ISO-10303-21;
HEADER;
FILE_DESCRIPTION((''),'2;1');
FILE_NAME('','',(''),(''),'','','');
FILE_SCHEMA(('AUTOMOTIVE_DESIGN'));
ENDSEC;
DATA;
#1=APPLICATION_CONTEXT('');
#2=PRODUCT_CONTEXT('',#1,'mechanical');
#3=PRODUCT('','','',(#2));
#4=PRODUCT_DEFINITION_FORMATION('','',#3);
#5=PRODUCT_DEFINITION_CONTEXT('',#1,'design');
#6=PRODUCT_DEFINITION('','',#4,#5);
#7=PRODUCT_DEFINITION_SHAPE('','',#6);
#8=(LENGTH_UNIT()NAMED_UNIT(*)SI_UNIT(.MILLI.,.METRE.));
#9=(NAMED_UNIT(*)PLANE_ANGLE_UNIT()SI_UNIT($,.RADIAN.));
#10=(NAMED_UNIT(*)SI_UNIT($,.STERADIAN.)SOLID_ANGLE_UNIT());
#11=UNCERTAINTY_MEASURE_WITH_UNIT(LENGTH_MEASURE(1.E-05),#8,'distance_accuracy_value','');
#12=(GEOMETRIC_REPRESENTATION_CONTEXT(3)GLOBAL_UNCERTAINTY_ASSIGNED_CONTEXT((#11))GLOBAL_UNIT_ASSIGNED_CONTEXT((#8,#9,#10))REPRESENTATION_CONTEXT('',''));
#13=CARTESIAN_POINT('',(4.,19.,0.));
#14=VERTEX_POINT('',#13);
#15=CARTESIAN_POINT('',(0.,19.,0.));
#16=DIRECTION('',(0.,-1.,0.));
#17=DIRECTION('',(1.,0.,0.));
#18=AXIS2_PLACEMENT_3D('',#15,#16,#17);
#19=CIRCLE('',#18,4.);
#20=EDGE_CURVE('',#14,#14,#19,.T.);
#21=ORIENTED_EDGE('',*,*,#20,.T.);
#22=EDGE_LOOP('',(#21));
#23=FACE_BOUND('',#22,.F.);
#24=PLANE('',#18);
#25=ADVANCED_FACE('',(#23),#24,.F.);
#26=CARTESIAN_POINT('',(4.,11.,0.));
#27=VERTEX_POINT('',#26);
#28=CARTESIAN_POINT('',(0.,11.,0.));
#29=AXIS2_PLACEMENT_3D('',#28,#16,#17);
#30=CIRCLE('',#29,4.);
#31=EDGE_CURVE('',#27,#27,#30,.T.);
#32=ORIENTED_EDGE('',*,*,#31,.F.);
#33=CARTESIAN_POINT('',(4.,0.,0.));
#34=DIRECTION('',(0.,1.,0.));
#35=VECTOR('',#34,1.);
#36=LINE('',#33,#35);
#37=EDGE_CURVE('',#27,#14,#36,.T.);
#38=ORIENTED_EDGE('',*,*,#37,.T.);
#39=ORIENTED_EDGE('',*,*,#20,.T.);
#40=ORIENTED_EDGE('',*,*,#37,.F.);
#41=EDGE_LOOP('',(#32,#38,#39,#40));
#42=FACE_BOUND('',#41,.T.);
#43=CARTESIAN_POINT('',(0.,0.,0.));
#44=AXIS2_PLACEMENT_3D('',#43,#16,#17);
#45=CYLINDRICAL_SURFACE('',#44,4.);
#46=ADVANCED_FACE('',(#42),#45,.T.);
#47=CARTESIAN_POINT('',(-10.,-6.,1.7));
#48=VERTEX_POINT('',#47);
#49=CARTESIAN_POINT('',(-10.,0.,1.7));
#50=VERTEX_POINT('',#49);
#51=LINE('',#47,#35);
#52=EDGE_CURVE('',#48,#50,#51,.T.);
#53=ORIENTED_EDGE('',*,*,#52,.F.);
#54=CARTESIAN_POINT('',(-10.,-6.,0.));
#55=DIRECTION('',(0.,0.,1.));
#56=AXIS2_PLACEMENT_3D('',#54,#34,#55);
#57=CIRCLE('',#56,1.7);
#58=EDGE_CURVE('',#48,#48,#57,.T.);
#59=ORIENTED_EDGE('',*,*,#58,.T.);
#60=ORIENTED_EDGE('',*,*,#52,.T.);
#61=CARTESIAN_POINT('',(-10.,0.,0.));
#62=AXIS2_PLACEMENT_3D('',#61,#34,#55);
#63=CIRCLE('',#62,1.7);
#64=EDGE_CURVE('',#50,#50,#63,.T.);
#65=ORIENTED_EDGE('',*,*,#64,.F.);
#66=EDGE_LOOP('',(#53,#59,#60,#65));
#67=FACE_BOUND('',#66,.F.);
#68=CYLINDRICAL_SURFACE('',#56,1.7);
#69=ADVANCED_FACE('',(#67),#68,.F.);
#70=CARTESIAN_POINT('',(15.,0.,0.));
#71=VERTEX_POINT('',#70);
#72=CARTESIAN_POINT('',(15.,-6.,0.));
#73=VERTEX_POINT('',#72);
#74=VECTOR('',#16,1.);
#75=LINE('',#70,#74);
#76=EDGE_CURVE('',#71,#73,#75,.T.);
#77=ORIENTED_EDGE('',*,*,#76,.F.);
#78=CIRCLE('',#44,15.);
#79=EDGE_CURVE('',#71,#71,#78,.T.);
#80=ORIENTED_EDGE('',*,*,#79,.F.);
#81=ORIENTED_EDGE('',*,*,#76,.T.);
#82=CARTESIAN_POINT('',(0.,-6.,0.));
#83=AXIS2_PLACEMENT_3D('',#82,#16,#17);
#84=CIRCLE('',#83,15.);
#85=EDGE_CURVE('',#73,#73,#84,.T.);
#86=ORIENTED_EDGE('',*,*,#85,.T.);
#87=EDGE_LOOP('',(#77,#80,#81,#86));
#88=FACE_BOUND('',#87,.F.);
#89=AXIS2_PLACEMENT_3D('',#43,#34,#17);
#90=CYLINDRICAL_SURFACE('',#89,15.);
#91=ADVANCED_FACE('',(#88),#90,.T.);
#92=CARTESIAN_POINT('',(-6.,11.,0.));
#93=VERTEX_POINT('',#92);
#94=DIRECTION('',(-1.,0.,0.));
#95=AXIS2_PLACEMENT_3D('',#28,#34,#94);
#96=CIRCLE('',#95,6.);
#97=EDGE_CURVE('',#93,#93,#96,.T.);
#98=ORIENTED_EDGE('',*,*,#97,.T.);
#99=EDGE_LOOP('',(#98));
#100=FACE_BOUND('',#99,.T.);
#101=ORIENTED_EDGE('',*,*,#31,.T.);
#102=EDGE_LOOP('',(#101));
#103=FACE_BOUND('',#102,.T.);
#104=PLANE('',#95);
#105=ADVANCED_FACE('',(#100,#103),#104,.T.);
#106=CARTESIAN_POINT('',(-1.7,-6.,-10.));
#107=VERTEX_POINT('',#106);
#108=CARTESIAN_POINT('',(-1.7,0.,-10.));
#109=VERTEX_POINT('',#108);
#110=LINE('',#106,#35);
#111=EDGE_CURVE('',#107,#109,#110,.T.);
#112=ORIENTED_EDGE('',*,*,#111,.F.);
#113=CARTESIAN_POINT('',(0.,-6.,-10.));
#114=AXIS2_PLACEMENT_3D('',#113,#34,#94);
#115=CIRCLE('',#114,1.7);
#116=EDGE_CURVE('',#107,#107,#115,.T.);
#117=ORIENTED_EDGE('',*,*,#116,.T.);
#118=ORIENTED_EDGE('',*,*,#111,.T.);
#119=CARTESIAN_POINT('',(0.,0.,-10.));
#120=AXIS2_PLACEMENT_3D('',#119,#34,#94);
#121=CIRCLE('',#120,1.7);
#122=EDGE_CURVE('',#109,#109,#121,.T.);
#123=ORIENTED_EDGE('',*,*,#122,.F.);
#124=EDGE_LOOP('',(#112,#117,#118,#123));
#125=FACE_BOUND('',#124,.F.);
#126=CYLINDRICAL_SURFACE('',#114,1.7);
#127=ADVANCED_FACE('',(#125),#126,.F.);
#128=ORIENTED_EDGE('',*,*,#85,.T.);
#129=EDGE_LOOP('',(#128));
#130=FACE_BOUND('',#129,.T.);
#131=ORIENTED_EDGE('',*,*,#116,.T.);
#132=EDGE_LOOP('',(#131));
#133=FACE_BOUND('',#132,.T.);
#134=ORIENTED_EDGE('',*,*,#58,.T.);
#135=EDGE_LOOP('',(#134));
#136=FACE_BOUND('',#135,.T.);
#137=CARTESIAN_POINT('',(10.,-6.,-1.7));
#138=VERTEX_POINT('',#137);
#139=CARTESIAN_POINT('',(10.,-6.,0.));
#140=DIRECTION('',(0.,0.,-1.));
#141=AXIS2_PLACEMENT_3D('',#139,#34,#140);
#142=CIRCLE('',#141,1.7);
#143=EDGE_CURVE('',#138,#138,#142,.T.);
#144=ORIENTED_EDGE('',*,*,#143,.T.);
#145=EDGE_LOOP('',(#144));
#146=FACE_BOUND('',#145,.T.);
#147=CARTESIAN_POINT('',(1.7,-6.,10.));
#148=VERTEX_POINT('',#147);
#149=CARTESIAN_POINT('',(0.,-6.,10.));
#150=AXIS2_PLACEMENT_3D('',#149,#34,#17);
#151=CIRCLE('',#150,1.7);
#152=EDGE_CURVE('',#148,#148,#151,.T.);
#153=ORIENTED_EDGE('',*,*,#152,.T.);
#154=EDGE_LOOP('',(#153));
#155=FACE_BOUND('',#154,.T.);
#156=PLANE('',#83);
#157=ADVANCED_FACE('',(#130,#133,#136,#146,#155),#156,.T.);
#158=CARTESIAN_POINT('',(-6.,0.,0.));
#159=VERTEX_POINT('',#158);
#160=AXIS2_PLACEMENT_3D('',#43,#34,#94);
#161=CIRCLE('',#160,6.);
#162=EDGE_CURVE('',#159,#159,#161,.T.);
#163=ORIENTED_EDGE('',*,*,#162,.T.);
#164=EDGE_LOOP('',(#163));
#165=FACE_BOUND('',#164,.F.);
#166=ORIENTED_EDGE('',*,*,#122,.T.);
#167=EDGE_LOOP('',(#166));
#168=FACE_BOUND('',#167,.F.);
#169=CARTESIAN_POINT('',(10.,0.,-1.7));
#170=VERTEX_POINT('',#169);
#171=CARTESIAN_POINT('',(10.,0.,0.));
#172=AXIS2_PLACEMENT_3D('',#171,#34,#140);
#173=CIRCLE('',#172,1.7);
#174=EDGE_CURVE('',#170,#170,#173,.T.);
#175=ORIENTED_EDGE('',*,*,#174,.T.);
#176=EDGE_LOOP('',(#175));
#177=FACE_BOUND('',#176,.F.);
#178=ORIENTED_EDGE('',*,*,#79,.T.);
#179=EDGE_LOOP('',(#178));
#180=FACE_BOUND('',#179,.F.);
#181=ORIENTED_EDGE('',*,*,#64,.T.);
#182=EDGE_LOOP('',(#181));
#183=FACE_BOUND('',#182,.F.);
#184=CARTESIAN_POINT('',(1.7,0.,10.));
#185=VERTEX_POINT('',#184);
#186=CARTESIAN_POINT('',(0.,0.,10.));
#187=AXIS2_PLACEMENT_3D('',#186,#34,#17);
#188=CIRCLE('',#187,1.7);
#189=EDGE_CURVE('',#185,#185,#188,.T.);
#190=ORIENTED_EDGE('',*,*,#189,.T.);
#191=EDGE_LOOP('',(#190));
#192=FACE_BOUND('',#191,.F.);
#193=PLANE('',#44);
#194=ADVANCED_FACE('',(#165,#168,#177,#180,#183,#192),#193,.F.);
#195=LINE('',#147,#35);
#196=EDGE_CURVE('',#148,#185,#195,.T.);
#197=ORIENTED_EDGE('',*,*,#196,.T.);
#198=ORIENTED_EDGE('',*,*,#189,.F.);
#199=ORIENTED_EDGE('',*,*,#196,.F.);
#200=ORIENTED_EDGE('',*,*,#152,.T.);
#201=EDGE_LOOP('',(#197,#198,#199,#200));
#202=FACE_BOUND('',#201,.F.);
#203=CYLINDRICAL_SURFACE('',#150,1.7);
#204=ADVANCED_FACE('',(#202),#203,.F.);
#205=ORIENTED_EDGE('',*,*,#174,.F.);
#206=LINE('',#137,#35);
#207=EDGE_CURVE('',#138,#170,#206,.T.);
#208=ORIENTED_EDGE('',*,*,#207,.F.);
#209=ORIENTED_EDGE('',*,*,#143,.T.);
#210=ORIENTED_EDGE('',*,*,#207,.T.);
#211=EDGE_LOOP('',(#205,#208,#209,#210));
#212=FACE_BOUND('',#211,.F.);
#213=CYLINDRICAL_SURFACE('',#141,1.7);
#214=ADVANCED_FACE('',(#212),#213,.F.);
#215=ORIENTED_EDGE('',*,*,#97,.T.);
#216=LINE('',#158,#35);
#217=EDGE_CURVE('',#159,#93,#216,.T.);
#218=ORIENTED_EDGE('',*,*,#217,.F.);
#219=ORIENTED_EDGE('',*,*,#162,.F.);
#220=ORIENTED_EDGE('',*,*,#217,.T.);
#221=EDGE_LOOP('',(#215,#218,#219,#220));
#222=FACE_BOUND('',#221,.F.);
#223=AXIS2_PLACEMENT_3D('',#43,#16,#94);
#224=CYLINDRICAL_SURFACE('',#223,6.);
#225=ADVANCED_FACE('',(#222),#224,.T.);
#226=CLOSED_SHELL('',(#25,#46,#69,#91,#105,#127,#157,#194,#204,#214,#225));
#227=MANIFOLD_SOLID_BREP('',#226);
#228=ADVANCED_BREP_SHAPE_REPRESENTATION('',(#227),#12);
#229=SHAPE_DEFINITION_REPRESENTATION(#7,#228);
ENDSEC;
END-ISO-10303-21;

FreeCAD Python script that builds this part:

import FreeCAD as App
import Part
import Sketcher

V = App.Vector

doc = App.newDocument("Part")
body = doc.addObject("PartDesign::Body", "Body")

sketch1 = body.newObject("Sketcher::SketchObject", "Sketch")
sketch1.AttachmentSupport = (doc.getObject("XZ_Plane"), [""])
sketch1.MapMode = "FlatFace"
sketch1.addGeometry(Part.Circle(V(0, 0, 0), V(0, 0, 1), 6), False)
sketch1.addConstraint([
    Sketcher.Constraint("Coincident", 0, 3, -1, 1),
    Sketcher.Constraint("Diameter", 0, 12.0),
])
pad1 = body.newObject("PartDesign::Pad", "Pad")
pad1.Profile = sketch1
pad1.Length = 11
pad1.Reversed = True

sketch2 = body.newObject("Sketcher::SketchObject", "Sketch001")
sketch2.AttachmentSupport = (doc.getObject("XZ_Plane"), [""])
sketch2.MapMode = "FlatFace"
sketch2.addGeometry(Part.Circle(V(0, 0, 0), V(0, 0, 1), 4), False)
sketch2.addConstraint([
    Sketcher.Constraint("Coincident", 0, 3, -1, 1),
    Sketcher.Constraint("Diameter", 0, 8.0),
])
pad2 = body.newObject("PartDesign::Pad", "Pad001")
pad2.Profile = sketch2
pad2.Length = 19
pad2.Reversed = True

sketch3 = body.newObject("Sketcher::SketchObject", "Sketch002")
sketch3.AttachmentSupport = (doc.getObject("XZ_Plane"), [""])
sketch3.MapMode = "FlatFace"
sketch3.addGeometry(Part.Circle(V(0, 0, 0), V(0, 0, 1), 15), False)
sketch3.addConstraint([
    Sketcher.Constraint("Coincident", 0, 3, -1, 1),
    Sketcher.Constraint("Diameter", 0, 30.0),
])
pad3 = body.newObject("PartDesign::Pad", "Pad002")
pad3.Profile = sketch3
pad3.Length = 6

sketch4 = body.newObject("Sketcher::SketchObject", "Sketch003")
sketch4.AttachmentSupport = (doc.getObject("XZ_Plane"), [""])
sketch4.MapMode = "FlatFace"
sketch4.AttachmentOffset = App.Placement(V(0, 0, 6), App.Rotation())
sketch4.addGeometry(Part.Circle(V(10, 0, 0), V(0, 0, 1), 1.7), False)
sketch4.addConstraint([
    Sketcher.Constraint("PointOnObject", 0, 3, -1),
    Sketcher.Constraint("Diameter", 0, 3.4),
    Sketcher.Constraint("DistanceX", -1, 1, 0, 3, 10.0),
])
doc.recompute()
hole = body.newObject("PartDesign::Hole", "Hole")
hole.Profile = sketch4
hole.ThreadType = "None"
hole.Diameter = 3.4
hole.DepthType = "ThroughAll"
doc.recompute()

polarpattern = body.newObject("PartDesign::PolarPattern", "PolarPattern")
polarpattern.Originals = [hole]
polarpattern.Axis = (doc.getObject("Y_Axis"), [""])
polarpattern.Angle = 360
polarpattern.Occurrences = 4
body.Tip = polarpattern

doc.recompute()
